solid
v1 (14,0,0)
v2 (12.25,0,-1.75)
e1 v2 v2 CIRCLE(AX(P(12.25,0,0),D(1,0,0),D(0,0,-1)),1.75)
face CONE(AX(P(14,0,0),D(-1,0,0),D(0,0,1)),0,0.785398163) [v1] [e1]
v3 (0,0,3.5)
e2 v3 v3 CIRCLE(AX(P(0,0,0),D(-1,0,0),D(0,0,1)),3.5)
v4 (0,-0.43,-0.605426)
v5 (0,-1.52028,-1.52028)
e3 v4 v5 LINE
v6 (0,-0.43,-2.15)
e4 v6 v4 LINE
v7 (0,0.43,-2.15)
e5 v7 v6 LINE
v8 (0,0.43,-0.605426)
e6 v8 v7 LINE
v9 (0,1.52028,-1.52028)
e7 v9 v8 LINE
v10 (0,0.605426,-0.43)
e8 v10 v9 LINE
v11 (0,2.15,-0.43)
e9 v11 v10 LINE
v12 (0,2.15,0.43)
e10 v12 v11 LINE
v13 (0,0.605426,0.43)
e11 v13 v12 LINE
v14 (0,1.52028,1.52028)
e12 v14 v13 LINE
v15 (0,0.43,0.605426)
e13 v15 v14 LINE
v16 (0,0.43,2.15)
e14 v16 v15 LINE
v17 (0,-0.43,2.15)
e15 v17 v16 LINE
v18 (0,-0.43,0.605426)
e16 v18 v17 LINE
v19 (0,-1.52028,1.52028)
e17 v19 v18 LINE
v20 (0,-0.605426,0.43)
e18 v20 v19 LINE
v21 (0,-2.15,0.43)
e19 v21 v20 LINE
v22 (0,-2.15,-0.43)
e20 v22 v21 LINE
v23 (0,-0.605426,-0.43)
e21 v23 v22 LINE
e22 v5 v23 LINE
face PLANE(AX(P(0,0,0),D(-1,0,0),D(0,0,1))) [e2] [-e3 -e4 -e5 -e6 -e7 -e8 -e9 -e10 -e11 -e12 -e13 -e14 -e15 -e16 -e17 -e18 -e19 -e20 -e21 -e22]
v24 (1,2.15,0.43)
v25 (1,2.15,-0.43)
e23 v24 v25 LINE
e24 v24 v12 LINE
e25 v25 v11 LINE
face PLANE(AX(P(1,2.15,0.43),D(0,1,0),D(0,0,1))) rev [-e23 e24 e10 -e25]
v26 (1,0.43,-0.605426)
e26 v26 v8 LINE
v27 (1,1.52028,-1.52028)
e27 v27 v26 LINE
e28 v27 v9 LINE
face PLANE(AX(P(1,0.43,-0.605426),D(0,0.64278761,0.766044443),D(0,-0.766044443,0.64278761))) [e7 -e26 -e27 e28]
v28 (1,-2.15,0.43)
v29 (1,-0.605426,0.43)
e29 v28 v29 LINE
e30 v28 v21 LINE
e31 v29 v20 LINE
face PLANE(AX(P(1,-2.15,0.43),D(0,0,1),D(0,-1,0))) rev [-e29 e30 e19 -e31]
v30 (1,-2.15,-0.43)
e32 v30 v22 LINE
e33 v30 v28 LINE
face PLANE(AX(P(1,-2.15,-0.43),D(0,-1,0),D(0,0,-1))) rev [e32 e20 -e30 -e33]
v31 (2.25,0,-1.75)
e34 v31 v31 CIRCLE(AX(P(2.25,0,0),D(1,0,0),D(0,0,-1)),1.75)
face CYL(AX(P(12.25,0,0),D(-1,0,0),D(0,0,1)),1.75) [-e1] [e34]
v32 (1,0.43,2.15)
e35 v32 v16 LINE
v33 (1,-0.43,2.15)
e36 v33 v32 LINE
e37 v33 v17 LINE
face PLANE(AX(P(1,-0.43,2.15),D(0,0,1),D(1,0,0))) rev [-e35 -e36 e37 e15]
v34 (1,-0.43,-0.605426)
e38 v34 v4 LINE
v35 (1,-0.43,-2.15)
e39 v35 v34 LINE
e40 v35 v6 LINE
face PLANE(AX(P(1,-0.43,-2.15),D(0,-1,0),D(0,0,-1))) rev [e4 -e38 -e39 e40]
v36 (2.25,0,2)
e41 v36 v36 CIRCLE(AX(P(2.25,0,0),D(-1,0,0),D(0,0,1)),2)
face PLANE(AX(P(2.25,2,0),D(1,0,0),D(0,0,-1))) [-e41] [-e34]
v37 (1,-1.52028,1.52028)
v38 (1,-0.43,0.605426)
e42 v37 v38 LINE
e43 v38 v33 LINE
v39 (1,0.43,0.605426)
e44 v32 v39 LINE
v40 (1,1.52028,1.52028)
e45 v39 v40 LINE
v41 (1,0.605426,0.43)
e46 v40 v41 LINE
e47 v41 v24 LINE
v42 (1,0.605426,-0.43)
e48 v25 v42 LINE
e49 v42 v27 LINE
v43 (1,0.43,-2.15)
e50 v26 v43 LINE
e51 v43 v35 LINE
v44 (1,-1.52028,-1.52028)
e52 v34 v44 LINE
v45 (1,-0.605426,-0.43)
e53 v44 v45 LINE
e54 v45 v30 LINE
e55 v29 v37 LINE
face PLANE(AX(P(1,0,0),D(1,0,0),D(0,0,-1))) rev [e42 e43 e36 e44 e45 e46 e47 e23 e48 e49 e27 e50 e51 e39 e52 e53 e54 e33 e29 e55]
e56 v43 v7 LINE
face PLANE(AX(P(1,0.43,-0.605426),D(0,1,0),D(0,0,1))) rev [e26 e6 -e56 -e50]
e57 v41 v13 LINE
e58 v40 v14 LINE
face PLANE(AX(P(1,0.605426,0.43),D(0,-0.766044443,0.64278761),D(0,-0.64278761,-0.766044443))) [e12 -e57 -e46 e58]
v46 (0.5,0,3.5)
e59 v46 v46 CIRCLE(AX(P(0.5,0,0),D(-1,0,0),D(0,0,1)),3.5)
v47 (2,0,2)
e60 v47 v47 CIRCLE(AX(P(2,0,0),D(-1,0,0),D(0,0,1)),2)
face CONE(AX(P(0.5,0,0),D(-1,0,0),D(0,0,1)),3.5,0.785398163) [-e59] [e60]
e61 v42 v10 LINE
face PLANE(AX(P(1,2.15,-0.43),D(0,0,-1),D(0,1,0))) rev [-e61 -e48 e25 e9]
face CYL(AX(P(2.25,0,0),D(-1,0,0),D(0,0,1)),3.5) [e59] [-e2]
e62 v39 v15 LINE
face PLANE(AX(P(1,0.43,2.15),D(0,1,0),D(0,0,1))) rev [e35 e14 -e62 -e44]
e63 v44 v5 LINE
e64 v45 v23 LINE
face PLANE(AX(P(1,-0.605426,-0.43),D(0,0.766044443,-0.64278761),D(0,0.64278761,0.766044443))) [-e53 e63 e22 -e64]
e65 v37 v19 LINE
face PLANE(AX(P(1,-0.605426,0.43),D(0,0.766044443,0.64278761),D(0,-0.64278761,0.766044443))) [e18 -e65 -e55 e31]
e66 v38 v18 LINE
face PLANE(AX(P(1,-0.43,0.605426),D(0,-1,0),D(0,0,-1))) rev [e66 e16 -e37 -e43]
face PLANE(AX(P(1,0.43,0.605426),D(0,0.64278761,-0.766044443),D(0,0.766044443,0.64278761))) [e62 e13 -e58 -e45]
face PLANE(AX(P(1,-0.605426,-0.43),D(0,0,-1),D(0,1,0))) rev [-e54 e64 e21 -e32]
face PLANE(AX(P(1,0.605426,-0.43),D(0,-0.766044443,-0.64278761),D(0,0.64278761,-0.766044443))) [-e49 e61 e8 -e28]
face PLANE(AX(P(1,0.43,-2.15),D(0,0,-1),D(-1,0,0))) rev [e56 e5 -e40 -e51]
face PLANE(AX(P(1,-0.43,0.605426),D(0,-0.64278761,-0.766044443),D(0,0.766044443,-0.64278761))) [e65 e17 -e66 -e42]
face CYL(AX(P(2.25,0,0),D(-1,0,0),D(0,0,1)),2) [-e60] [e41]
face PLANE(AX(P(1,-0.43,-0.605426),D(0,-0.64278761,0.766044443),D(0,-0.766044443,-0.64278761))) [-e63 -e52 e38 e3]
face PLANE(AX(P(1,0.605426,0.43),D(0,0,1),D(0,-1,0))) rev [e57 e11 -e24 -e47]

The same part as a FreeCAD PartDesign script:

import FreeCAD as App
import Part
import Sketcher

V = App.Vector
Q = App.Units.Quantity


def faces_at(feature, points):
    """Names of the faces that lie closest to the given points."""
    faces = feature.Shape.Faces
    near = lambda p: min(range(len(faces)), key=lambda i: faces[i].distToShape(Part.Vertex(*p))[0])
    return sorted({f"Face{near(p) + 1}" for p in points})


def add_polygon(sketch, points):
    """Adds a closed chain of lines whose ends are joined by coincident constraints."""
    first, n = sketch.GeometryCount, len(points)
    for a, b in zip(points, points[1:] + points[:1]):
        sketch.addGeometry(Part.LineSegment(App.Vector(*a, 0), App.Vector(*b, 0)), False)
    for i in range(n):
        sketch.addConstraint(Sketcher.Constraint("Coincident", first + i, 2, first + (i + 1) % n, 1))

doc = App.newDocument("Part")
params = doc.addObject("Spreadsheet::Sheet", "Params")
for row, (alias, value) in enumerate([
    ("sketch1_height", "2 mm"),
    ("sketch1_width", "0.5 mm"),
    ("sketch1_height2", "3.5 mm"),
    ("sketch1_width2", "2.25 mm"),
    ("revolution_angle", "360 deg"),
    ("sketch2_diameter", "3.5 mm"),
    ("pad1_length", "10 mm"),
    ("sketch3_width", "1.75 mm"),
    ("revolution2_angle", "360 deg"),
    ("sketch4_width", "0.86 mm"),
    ("pocket1_length", "1 mm"),
    ("draft_angle", "40 deg"),
    ("draft2_angle", "40 deg"),
    ("draft3_angle", "40 deg"),
    ("draft4_angle", "40 deg"),
    ("draft5_angle", "40 deg"),
    ("draft6_angle", "40 deg"),
    ("draft7_angle", "40 deg"),
    ("draft8_angle", "40 deg"),
], start=1):
    params.set(f"A{row}", alias)
    params.set(f"B{row}", "=" + value)
    params.setAlias(f"B{row}", alias)

body = doc.addObject("PartDesign::Body", "Body")

# Sketch on XY plane
sketch1 = body.newObject("Sketcher::SketchObject", "Sketch")
sketch1.AttachmentSupport = (doc.getObject("XY_Plane"), [""])
sketch1.MapMode = "FlatFace"
add_polygon(sketch1, [(2.25, 2), (2.25, 0), (0, 0), (0, 3.5), (0.5, 3.5), (2, 2)])  # lines 0-5
sketch1.addConstraint(Sketcher.Constraint("Vertical", 0))
sketch1.addConstraint(Sketcher.Constraint("Horizontal", 1))
sketch1.addConstraint(Sketcher.Constraint("Vertical", 2))
sketch1.addConstraint(Sketcher.Constraint("Horizontal", 3))
sketch1.addConstraint(Sketcher.Constraint("Horizontal", 5))
sketch1.addConstraint(Sketcher.Constraint("Coincident", 1, 2, -1, 1))
sketch1.addConstraint(Sketcher.Constraint("DistanceY", 0, 2, 0, 1, 2.0))
sketch1.addConstraint(Sketcher.Constraint("Angle", 4, Q("-45 deg")))
sketch1.addConstraint(Sketcher.Constraint("DistanceX", 3, 1, 3, 2, 0.5))
sketch1.addConstraint(Sketcher.Constraint("DistanceY", 2, 1, 2, 2, 3.5))
sketch1.addConstraint(Sketcher.Constraint("DistanceX", 1, 2, 1, 1, 2.25))
sketch1.setExpression("Constraints[12]", "Params.sketch1_height")
sketch1.setExpression("Constraints[14]", "Params.sketch1_width")
sketch1.setExpression("Constraints[15]", "Params.sketch1_height2")
sketch1.setExpression("Constraints[16]", "Params.sketch1_width2")
revolution = body.newObject("PartDesign::Revolution", "Revolution")
revolution.Profile = sketch1
revolution.ReferenceAxis = (sketch1, ["H_Axis"])
revolution.setExpression("Angle", "Params.revolution_angle")

# Sketch on YZ plane
sketch2 = body.newObject("Sketcher::SketchObject", "Sketch001")
sketch2.AttachmentSupport = (doc.getObject("YZ_Plane"), [""])
sketch2.MapMode = "FlatFace"
sketch2.AttachmentOffset = App.Placement(V(0, 0, 2.25), App.Rotation())
sketch2.addGeometry(Part.Circle(V(0, 0, 0), V(0, 0, 1), 1.8), False)
sketch2.addConstraint(Sketcher.Constraint("Coincident", 0, 3, -1, 1))
sketch2.addConstraint(Sketcher.Constraint("Diameter", 0, 3.5))
sketch2.setExpression("Constraints[1]", "Params.sketch2_diameter")
pad1 = body.newObject("PartDesign::Pad", "Pad")
pad1.Profile = sketch2
pad1.setExpression("Length", "Params.pad1_length")

# Sketch on XY plane
sketch3 = body.newObject("Sketcher::SketchObject", "Sketch002")
sketch3.AttachmentSupport = (doc.getObject("XY_Plane"), [""])
sketch3.MapMode = "FlatFace"
add_polygon(sketch3, [(12.2, 1.8), (12.2, 0), (14, 0)])  # lines 0-2
sketch3.addConstraint(Sketcher.Constraint("Vertical", 0))
sketch3.addConstraint(Sketcher.Constraint("Horizontal", 1))
sketch3.addConstraint(Sketcher.Constraint("PointOnObject", 0, 2, -1))
sketch3.addConstraint(Sketcher.Constraint("Equal", 1, 0))
sketch3.addConstraint(Sketcher.Constraint("DistanceX", -1, 1, 1, 2, 14.0))
sketch3.addConstraint(Sketcher.Constraint("DistanceX", 1, 1, 1, 2, 1.75))
sketch3.setExpression("Constraints[8]", "Params.sketch3_width")
revolution2 = body.newObject("PartDesign::Revolution", "Revolution001")
revolution2.Profile = sketch3
revolution2.ReferenceAxis = (sketch3, ["H_Axis"])
revolution2.setExpression("Angle", "Params.revolution2_angle")

# Sketch on YZ plane
sketch4 = body.newObject("Sketcher::SketchObject", "Sketch003")
sketch4.AttachmentSupport = (doc.getObject("YZ_Plane"), [""])
sketch4.MapMode = "FlatFace"
add_polygon(sketch4, [(-0.43, -0.61), (-0.61, -0.61), (-0.61, -0.43), (-2.15, -0.43), (-2.15, 0.43), (-0.61, 0.43), (-0.61, 0.61), (-0.43, 0.61), (-0.43, 2.15), (0.43, 2.15), (0.43, 0.61), (0.61, 0.61), (0.61, 0.43), (2.15, 0.43), (2.15, -0.43), (0.61, -0.43), (0.61, -0.61), (0.43, -0.61), (0.43, -2.15), (-0.43, -2.15)])  # lines 0-19
sketch4.addConstraint(Sketcher.Constraint("Horizontal", 0))
sketch4.addConstraint(Sketcher.Constraint("Vertical", 1))
sketch4.addConstraint(Sketcher.Constraint("Horizontal", 2))
sketch4.addConstraint(Sketcher.Constraint("Vertical", 3))
sketch4.addConstraint(Sketcher.Constraint("Horizontal", 4))
sketch4.addConstraint(Sketcher.Constraint("Vertical", 5))
sketch4.addConstraint(Sketcher.Constraint("Horizontal", 6))
sketch4.addConstraint(Sketcher.Constraint("Vertical", 7))
sketch4.addConstraint(Sketcher.Constraint("Horizontal", 8))
sketch4.addConstraint(Sketcher.Constraint("Vertical", 9))
sketch4.addConstraint(Sketcher.Constraint("Horizontal", 10))
sketch4.addConstraint(Sketcher.Constraint("Vertical", 11))
sketch4.addConstraint(Sketcher.Constraint("Horizontal", 12))
sketch4.addConstraint(Sketcher.Constraint("Vertical", 13))
sketch4.addConstraint(Sketcher.Constraint("Horizontal", 14))
sketch4.addConstraint(Sketcher.Constraint("Vertical", 15))
sketch4.addConstraint(Sketcher.Constraint("Horizontal", 16))
sketch4.addConstraint(Sketcher.Constraint("Vertical", 17))
sketch4.addConstraint(Sketcher.Constraint("Horizontal", 18))
sketch4.addConstraint(Sketcher.Constraint("Vertical", 19))
sketch4.addConstraint(Sketcher.Constraint("Symmetric", 0, 2, 10, 2, -1, 1))
sketch4.addConstraint(Sketcher.Constraint("Symmetric", 2, 2, 12, 2, -1, 1))
sketch4.addConstraint(Sketcher.Constraint("Symmetric", 4, 2, 14, 2, -1, 1))
sketch4.addConstraint(Sketcher.Constraint("Symmetric", 6, 2, 16, 2, -1, 1))
sketch4.addConstraint(Sketcher.Constraint("Symmetric", 8, 2, 18, 2, -1, 1))
sketch4.addConstraint(Sketcher.Constraint("Symmetric", 6, 2, 9, 2, -2))
sketch4.addConstraint(Sketcher.Constraint("Symmetric", 4, 2, 11, 2, -2))
sketch4.addConstraint(Sketcher.Constraint("Equal", 16, 1))
sketch4.addConstraint(Sketcher.Constraint("Equal", 18, 3))
sketch4.addConstraint(Sketcher.Constraint("Equal", 14, 7))
sketch4.addConstraint(Sketcher.Constraint("DistanceX", 8, 1, 8, 2, 0.86))
sketch4.addConstraint(Sketcher.Constraint("DistanceX", 2, 2, -1, 1, 2.15))
sketch4.addConstraint(Sketcher.Constraint("DistanceX", 0, 2, 0, 1, 0.175426))
sketch4.setExpression("Constraints[50]", "Params.sketch4_width")
pocket1 = body.newObject("PartDesign::Pocket", "Pocket")
pocket1.Profile = sketch4
pocket1.setExpression("Length", "Params.pocket1_length")
pocket1.Reversed = True
doc.recompute()

datumplane = body.newObject("PartDesign::Plane", "DatumPlane")
datumplane.AttachmentSupport = (doc.getObject("XY_Plane"), [""])
datumplane.MapMode = "FlatFace"
datumplane.AttachmentOffset = App.Placement(V(0, 0, -0.43), App.Rotation())
draft = body.newObject("PartDesign::Draft", "Draft")
draft.Base = (pocket1, faces_at(pocket1, [(0.5, -0.605, -0.518)]))
draft.NeutralPlane = (datumplane, [""])
draft.setExpression("Angle", "Params.draft_angle")
draft.Reversed = True
doc.recompute()

datumplane2 = body.newObject("PartDesign::Plane", "DatumPlane001")
datumplane2.AttachmentSupport = (doc.getObject("XY_Plane"), [""])
datumplane2.MapMode = "FlatFace"
datumplane2.AttachmentOffset = App.Placement(V(0, 0, 0.43), App.Rotation())
draft2 = body.newObject("PartDesign::Draft", "Draft001")
draft2.Base = (draft, faces_at(draft, [(0.5, -0.605, 0.518)]))
draft2.NeutralPlane = (datumplane2, [""])
draft2.setExpression("Angle", "Params.draft2_angle")
draft2.Reversed = False
doc.recompute()

datumplane3 = body.newObject("PartDesign::Plane", "DatumPlane002")
datumplane3.AttachmentSupport = (doc.getObject("XZ_Plane"), [""])
datumplane3.MapMode = "FlatFace"
datumplane3.AttachmentOffset = App.Placement(V(0, 0, 0.43), App.Rotation())
draft3 = body.newObject("PartDesign::Draft", "Draft002")
draft3.Base = (draft2, faces_at(draft2, [(0.5, -0.591, 0.605)]))
draft3.NeutralPlane = (datumplane3, [""])
draft3.setExpression("Angle", "Params.draft3_angle")
draft3.Reversed = False
doc.recompute()

datumplane4 = body.newObject("PartDesign::Plane", "DatumPlane003")
datumplane4.AttachmentSupport = (doc.getObject("XZ_Plane"), [""])
datumplane4.MapMode = "FlatFace"
datumplane4.AttachmentOffset = App.Placement(V(0, 0, -0.43), App.Rotation())
draft4 = body.newObject("PartDesign::Draft", "Draft003")
draft4.Base = (draft3, faces_at(draft3, [(0.5, 0.518, 0.605)]))
draft4.NeutralPlane = (datumplane4, [""])
draft4.setExpression("Angle", "Params.draft4_angle")
draft4.Reversed = True
doc.recompute()

datumplane5 = body.newObject("PartDesign::Plane", "DatumPlane004")
datumplane5.AttachmentSupport = (doc.getObject("XY_Plane"), [""])
datumplane5.MapMode = "FlatFace"
datumplane5.AttachmentOffset = App.Placement(V(0, 0, 0.43), App.Rotation())
draft5 = body.newObject("PartDesign::Draft", "Draft004")
draft5.Base = (draft4, faces_at(draft4, [(0.5, 0.605, 0.591)]))
draft5.NeutralPlane = (datumplane5, [""])
draft5.setExpression("Angle", "Params.draft5_angle")
draft5.Reversed = False
doc.recompute()

datumplane6 = body.newObject("PartDesign::Plane", "DatumPlane005")
datumplane6.AttachmentSupport = (doc.getObject("XY_Plane"), [""])
datumplane6.MapMode = "FlatFace"
datumplane6.AttachmentOffset = App.Placement(V(0, 0, -0.43), App.Rotation())
draft6 = body.newObject("PartDesign::Draft", "Draft005")
draft6.Base = (draft5, faces_at(draft5, [(0.5, 0.605, -0.518)]))
draft6.NeutralPlane = (datumplane6, [""])
draft6.setExpression("Angle", "Params.draft6_angle")
draft6.Reversed = True
doc.recompute()

datumplane7 = body.newObject("PartDesign::Plane", "DatumPlane006")
datumplane7.AttachmentSupport = (doc.getObject("XZ_Plane"), [""])
datumplane7.MapMode = "FlatFace"
datumplane7.AttachmentOffset = App.Placement(V(0, 0, -0.43), App.Rotation())
draft7 = body.newObject("PartDesign::Draft", "Draft006")
draft7.Base = (draft6, faces_at(draft6, [(0.5, 0.591, -0.605)]))
draft7.NeutralPlane = (datumplane7, [""])
draft7.setExpression("Angle", "Params.draft7_angle")
draft7.Reversed = True
doc.recompute()

datumplane8 = body.newObject("PartDesign::Plane", "DatumPlane007")
datumplane8.AttachmentSupport = (doc.getObject("XZ_Plane"), [""])
datumplane8.MapMode = "FlatFace"
datumplane8.AttachmentOffset = App.Placement(V(0, 0, 0.43), App.Rotation())
draft8 = body.newObject("PartDesign::Draft", "Draft007")
draft8.Base = (draft7, faces_at(draft7, [(0.5, -0.591, -0.605)]))
draft8.NeutralPlane = (datumplane8, [""])
draft8.setExpression("Angle", "Params.draft8_angle")
draft8.Reversed = False

doc.recompute()
